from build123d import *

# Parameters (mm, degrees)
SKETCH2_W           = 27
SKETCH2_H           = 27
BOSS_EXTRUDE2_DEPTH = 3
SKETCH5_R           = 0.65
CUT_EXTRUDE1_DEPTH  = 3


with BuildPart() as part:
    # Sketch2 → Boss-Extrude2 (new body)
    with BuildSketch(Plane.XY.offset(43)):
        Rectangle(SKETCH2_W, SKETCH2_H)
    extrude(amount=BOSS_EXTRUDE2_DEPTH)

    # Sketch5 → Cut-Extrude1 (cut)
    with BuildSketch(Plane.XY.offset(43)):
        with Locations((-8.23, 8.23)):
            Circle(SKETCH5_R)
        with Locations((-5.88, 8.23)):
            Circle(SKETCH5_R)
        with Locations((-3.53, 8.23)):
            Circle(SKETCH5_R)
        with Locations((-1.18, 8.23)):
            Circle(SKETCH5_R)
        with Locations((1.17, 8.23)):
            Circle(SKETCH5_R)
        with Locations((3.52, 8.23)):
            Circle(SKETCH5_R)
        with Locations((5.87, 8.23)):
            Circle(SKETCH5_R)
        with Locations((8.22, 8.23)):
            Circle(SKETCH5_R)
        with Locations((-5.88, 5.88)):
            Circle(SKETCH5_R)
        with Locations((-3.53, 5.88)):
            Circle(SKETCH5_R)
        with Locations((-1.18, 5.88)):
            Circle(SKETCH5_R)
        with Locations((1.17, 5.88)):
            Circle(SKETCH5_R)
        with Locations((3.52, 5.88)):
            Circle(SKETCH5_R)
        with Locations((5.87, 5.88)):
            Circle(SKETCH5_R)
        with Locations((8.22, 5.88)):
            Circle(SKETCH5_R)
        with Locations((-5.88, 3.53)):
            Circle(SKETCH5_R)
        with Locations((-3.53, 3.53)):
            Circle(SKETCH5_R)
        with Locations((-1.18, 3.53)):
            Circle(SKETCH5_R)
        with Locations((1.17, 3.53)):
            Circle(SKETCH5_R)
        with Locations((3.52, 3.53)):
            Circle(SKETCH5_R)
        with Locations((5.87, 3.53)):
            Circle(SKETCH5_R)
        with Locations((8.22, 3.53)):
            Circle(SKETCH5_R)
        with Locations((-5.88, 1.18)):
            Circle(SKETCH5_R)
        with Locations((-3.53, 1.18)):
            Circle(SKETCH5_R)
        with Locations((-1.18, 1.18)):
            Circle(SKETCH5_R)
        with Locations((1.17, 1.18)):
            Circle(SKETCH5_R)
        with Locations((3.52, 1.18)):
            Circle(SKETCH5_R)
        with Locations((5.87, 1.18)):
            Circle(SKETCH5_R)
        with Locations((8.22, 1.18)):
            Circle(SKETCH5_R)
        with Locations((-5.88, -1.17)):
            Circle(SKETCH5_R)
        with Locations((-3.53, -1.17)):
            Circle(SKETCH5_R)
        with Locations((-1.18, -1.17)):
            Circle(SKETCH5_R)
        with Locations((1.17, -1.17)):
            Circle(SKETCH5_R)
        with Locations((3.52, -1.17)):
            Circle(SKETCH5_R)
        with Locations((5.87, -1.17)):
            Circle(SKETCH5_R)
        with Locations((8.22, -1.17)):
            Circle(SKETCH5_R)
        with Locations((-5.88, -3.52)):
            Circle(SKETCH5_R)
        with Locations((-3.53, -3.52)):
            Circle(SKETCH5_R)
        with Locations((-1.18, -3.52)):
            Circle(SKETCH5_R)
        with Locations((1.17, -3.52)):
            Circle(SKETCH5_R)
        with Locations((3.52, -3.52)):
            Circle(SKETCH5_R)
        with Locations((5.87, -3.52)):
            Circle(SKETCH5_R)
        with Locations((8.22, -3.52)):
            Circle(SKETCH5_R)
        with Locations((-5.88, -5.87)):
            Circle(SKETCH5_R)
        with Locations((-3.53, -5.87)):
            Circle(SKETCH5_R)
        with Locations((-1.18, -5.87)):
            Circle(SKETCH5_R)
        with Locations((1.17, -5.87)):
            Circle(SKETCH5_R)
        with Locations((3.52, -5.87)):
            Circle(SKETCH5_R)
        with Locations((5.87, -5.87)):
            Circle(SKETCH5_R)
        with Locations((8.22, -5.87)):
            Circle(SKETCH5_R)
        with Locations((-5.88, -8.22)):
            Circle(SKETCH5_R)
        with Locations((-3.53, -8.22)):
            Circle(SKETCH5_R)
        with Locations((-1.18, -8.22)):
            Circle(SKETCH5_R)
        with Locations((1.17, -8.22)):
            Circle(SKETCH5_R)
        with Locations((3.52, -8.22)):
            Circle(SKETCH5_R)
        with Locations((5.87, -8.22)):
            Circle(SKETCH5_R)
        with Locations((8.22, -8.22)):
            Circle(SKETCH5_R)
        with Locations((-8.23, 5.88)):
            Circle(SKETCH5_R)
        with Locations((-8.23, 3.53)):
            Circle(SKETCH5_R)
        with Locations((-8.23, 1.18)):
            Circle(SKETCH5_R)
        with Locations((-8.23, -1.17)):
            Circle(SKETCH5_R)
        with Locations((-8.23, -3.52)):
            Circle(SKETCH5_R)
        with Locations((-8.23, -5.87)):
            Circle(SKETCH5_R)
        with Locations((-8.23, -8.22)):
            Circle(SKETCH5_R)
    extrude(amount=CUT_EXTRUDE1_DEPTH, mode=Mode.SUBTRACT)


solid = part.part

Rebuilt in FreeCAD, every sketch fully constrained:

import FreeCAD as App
import Part
import Sketcher
from FreeCAD import Vector
Q = App.Units.Quantity

doc = App.newDocument("Part")
body = doc.addObject("PartDesign::Body", "Body")

# Sketch on XY plane
sketch1 = body.newObject("Sketcher::SketchObject", "Sketch")
sketch1.AttachmentSupport = (doc.getObject("XY_Plane"), [""])
sketch1.MapMode = "FlatFace"
sketch1.AttachmentOffset = App.Placement(Vector(0, 0, 43), App.Rotation())
sketch1.addGeometry(Part.LineSegment(Vector(-14, 14, 0), Vector(-14, -14, 0)), False)
sketch1.addGeometry(Part.LineSegment(Vector(-14, -14, 0), Vector(14, -14, 0)), False)
sketch1.addGeometry(Part.LineSegment(Vector(14, -14, 0), Vector(14, 14, 0)), False)
sketch1.addGeometry(Part.LineSegment(Vector(14, 14, 0), Vector(-14, 14, 0)), False)
sketch1.addConstraint(Sketcher.Constraint("Coincident", 0, 2, 1, 1))
sketch1.addConstraint(Sketcher.Constraint("Coincident", 1, 2, 2, 1))
sketch1.addConstraint(Sketcher.Constraint("Coincident", 2, 2, 3, 1))
sketch1.addConstraint(Sketcher.Constraint("Coincident", 3, 2, 0, 1))
sketch1.addConstraint(Sketcher.Constraint("Vertical", 0))
sketch1.addConstraint(Sketcher.Constraint("Horizontal", 1))
sketch1.addConstraint(Sketcher.Constraint("Vertical", 2))
sketch1.addConstraint(Sketcher.Constraint("Horizontal", 3))
sketch1.addConstraint(Sketcher.Constraint("Symmetric", 0, 2, 2, 2, -1, 1))
sketch1.addConstraint(Sketcher.Constraint("Equal", 3, 0))
sketch1.addConstraint(Sketcher.Constraint("DistanceX", 1, 1, 1, 2, Q("27 mm")))
pad1 = body.newObject("PartDesign::Pad", "Pad")
pad1.Profile = sketch1
pad1.Length = 3

# Sketch on XY plane
sketch2 = body.newObject("Sketcher::SketchObject", "Sketch001")
sketch2.AttachmentSupport = (doc.getObject("XY_Plane"), [""])
sketch2.MapMode = "FlatFace"
sketch2.AttachmentOffset = App.Placement(Vector(0, 0, 43), App.Rotation())
sketch2.addGeometry(Part.Circle(Vector(-8.2, 8.2, 0), Vector(0, 0, 1), 0.7), False)
sketch2.addGeometry(Part.Circle(Vector(-5.9, 8.2, 0), Vector(0, 0, 1), 0.7), False)
sketch2.addGeometry(Part.Circle(Vector(-3.5, 8.2, 0), Vector(0, 0, 1), 0.7), False)
sketch2.addGeometry(Part.Circle(Vector(-1.2, 8.2, 0), Vector(0, 0, 1), 0.7), False)
sketch2.addGeometry(Part.Circle(Vector(1.2, 8.2, 0), Vector(0, 0, 1), 0.7), False)
sketch2.addGeometry(Part.Circle(Vector(3.5, 8.2, 0), Vector(0, 0, 1), 0.7), False)
sketch2.addGeometry(Part.Circle(Vector(5.9, 8.2, 0), Vector(0, 0, 1), 0.7), False)
sketch2.addGeometry(Part.Circle(Vector(8.2, 8.2, 0), Vector(0, 0, 1), 0.7), False)
sketch2.addGeometry(Part.Circle(Vector(-5.9, 5.9, 0), Vector(0, 0, 1), 0.7), False)
sketch2.addGeometry(Part.Circle(Vector(-3.5, 5.9, 0), Vector(0, 0, 1), 0.7), False)
sketch2.addGeometry(Part.Circle(Vector(-1.2, 5.9, 0), Vector(0, 0, 1), 0.7), False)
sketch2.addGeometry(Part.Circle(Vector(1.2, 5.9, 0), Vector(0, 0, 1), 0.7), False)
sketch2.addGeometry(Part.Circle(Vector(3.5, 5.9, 0), Vector(0, 0, 1), 0.7), False)
sketch2.addGeometry(Part.Circle(Vector(5.9, 5.9, 0), Vector(0, 0, 1), 0.7), False)
sketch2.addGeometry(Part.Circle(Vector(8.2, 5.9, 0), Vector(0, 0, 1), 0.7), False)
sketch2.addGeometry(Part.Circle(Vector(-5.9, 3.5, 0), Vector(0, 0, 1), 0.7), False)
sketch2.addGeometry(Part.Circle(Vector(-3.5, 3.5, 0), Vector(0, 0, 1), 0.7), False)
sketch2.addGeometry(Part.Circle(Vector(-1.2, 3.5, 0), Vector(0, 0, 1), 0.7), False)
sketch2.addGeometry(Part.Circle(Vector(1.2, 3.5, 0), Vector(0, 0, 1), 0.7), False)
sketch2.addGeometry(Part.Circle(Vector(3.5, 3.5, 0), Vector(0, 0, 1), 0.7), False)
sketch2.addGeometry(Part.Circle(Vector(5.9, 3.5, 0), Vector(0, 0, 1), 0.7), False)
sketch2.addGeometry(Part.Circle(Vector(8.2, 3.5, 0), Vector(0, 0, 1), 0.7), False)
sketch2.addGeometry(Part.Circle(Vector(-5.9, 1.2, 0), Vector(0, 0, 1), 0.7), False)
sketch2.addGeometry(Part.Circle(Vector(-3.5, 1.2, 0), Vector(0, 0, 1), 0.7), False)
sketch2.addGeometry(Part.Circle(Vector(-1.2, 1.2, 0), Vector(0, 0, 1), 0.7), False)
sketch2.addGeometry(Part.Circle(Vector(1.2, 1.2, 0), Vector(0, 0, 1), 0.7), False)
sketch2.addGeometry(Part.Circle(Vector(3.5, 1.2, 0), Vector(0, 0, 1), 0.7), False)
sketch2.addGeometry(Part.Circle(Vector(5.9, 1.2, 0), Vector(0, 0, 1), 0.7), False)
sketch2.addGeometry(Part.Circle(Vector(8.2, 1.2, 0), Vector(0, 0, 1), 0.7), False)
sketch2.addGeometry(Part.Circle(Vector(-5.9, -1.2, 0), Vector(0, 0, 1), 0.7), False)
sketch2.addGeometry(Part.Circle(Vector(-3.5, -1.2, 0), Vector(0, 0, 1), 0.7), False)
sketch2.addGeometry(Part.Circle(Vector(-1.2, -1.2, 0), Vector(0, 0, 1), 0.7), False)
sketch2.addGeometry(Part.Circle(Vector(1.2, -1.2, 0), Vector(0, 0, 1), 0.7), False)
sketch2.addGeometry(Part.Circle(Vector(3.5, -1.2, 0), Vector(0, 0, 1), 0.7), False)
sketch2.addGeometry(Part.Circle(Vector(5.9, -1.2, 0), Vector(0, 0, 1), 0.7), False)
sketch2.addGeometry(Part.Circle(Vector(8.2, -1.2, 0), Vector(0, 0, 1), 0.7), False)
sketch2.addGeometry(Part.Circle(Vector(-5.9, -3.5, 0), Vector(0, 0, 1), 0.7), False)
sketch2.addGeometry(Part.Circle(Vector(-3.5, -3.5, 0), Vector(0, 0, 1), 0.7), False)
sketch2.addGeometry(Part.Circle(Vector(-1.2, -3.5, 0), Vector(0, 0, 1), 0.7), False)
sketch2.addGeometry(Part.Circle(Vector(1.2, -3.5, 0), Vector(0, 0, 1), 0.7), False)
sketch2.addGeometry(Part.Circle(Vector(3.5, -3.5, 0), Vector(0, 0, 1), 0.7), False)
sketch2.addGeometry(Part.Circle(Vector(5.9, -3.5, 0), Vector(0, 0, 1), 0.7), False)
sketch2.addGeometry(Part.Circle(Vector(8.2, -3.5, 0), Vector(0, 0, 1), 0.7), False)
sketch2.addGeometry(Part.Circle(Vector(-5.9, -5.9, 0), Vector(0, 0, 1), 0.7), False)
sketch2.addGeometry(Part.Circle(Vector(-3.5, -5.9, 0), Vector(0, 0, 1), 0.7), False)
sketch2.addGeometry(Part.Circle(Vector(-1.2, -5.9, 0), Vector(0, 0, 1), 0.7), False)
sketch2.addGeometry(Part.Circle(Vector(1.2, -5.9, 0), Vector(0, 0, 1), 0.7), False)
sketch2.addGeometry(Part.Circle(Vector(3.5, -5.9, 0), Vector(0, 0, 1), 0.7), False)
sketch2.addGeometry(Part.Circle(Vector(5.9, -5.9, 0), Vector(0, 0, 1), 0.7), False)
sketch2.addGeometry(Part.Circle(Vector(8.2, -5.9, 0), Vector(0, 0, 1), 0.7), False)
sketch2.addGeometry(Part.Circle(Vector(-5.9, -8.2, 0), Vector(0, 0, 1), 0.7), False)
sketch2.addGeometry(Part.Circle(Vector(-3.5, -8.2, 0), Vector(0, 0, 1), 0.7), False)
sketch2.addGeometry(Part.Circle(Vector(-1.2, -8.2, 0), Vector(0, 0, 1), 0.7), False)
sketch2.addGeometry(Part.Circle(Vector(1.2, -8.2, 0), Vector(0, 0, 1), 0.7), False)
sketch2.addGeometry(Part.Circle(Vector(3.5, -8.2, 0), Vector(0, 0, 1), 0.7), False)
sketch2.addGeometry(Part.Circle(Vector(5.9, -8.2, 0), Vector(0, 0, 1), 0.7), False)
sketch2.addGeometry(Part.Circle(Vector(8.2, -8.2, 0), Vector(0, 0, 1), 0.7), False)
sketch2.addGeometry(Part.Circle(Vector(-8.2, 5.9, 0), Vector(0, 0, 1), 0.7), False)
sketch2.addGeometry(Part.Circle(Vector(-8.2, 3.5, 0), Vector(0, 0, 1), 0.7), False)
sketch2.addGeometry(Part.Circle(Vector(-8.2, 1.2, 0), Vector(0, 0, 1), 0.7), False)
sketch2.addGeometry(Part.Circle(Vector(-8.2, -1.2, 0), Vector(0, 0, 1), 0.7), False)
sketch2.addGeometry(Part.Circle(Vector(-8.2, -3.5, 0), Vector(0, 0, 1), 0.7), False)
sketch2.addGeometry(Part.Circle(Vector(-8.2, -5.9, 0), Vector(0, 0, 1), 0.7), False)
sketch2.addGeometry(Part.Circle(Vector(-8.2, -8.2, 0), Vector(0, 0, 1), 0.7), False)
sketch2.addConstraint(Sketcher.Constraint("Equal", 0, 1))
sketch2.addConstraint(Sketcher.Constraint("Equal", 1, 2))
sketch2.addConstraint(Sketcher.Constraint("Equal", 2, 3))
sketch2.addConstraint(Sketcher.Constraint("Equal", 3, 4))
sketch2.addConstraint(Sketcher.Constraint("Equal", 4, 5))
sketch2.addConstraint(Sketcher.Constraint("Equal", 5, 6))
sketch2.addConstraint(Sketcher.Constraint("Equal", 6, 7))
sketch2.addConstraint(Sketcher.Constraint("Equal", 7, 8))
sketch2.addConstraint(Sketcher.Constraint("Equal", 8, 9))
sketch2.addConstraint(Sketcher.Constraint("Equal", 9, 10))
sketch2.addConstraint(Sketcher.Constraint("Equal", 10, 11))
sketch2.addConstraint(Sketcher.Constraint("Equal", 11, 12))
sketch2.addConstraint(Sketcher.Constraint("Equal", 12, 13))
sketch2.addConstraint(Sketcher.Constraint("Equal", 13, 14))
sketch2.addConstraint(Sketcher.Constraint("Equal", 14, 15))
sketch2.addConstraint(Sketcher.Constraint("Equal", 15, 16))
sketch2.addConstraint(Sketcher.Constraint("Equal", 16, 17))
sketch2.addConstraint(Sketcher.Constraint("Equal", 17, 18))
sketch2.addConstraint(Sketcher.Constraint("Equal", 18, 19))
sketch2.addConstraint(Sketcher.Constraint("Equal", 19, 20))
sketch2.addConstraint(Sketcher.Constraint("Equal", 20, 21))
sketch2.addConstraint(Sketcher.Constraint("Equal", 21, 22))
sketch2.addConstraint(Sketcher.Constraint("Equal", 22, 23))
sketch2.addConstraint(Sketcher.Constraint("Equal", 23, 24))
sketch2.addConstraint(Sketcher.Constraint("Equal", 24, 25))
sketch2.addConstraint(Sketcher.Constraint("Equal", 25, 26))
sketch2.addConstraint(Sketcher.Constraint("Equal", 26, 27))
sketch2.addConstraint(Sketcher.Constraint("Equal", 27, 28))
sketch2.addConstraint(Sketcher.Constraint("Equal", 28, 29))
sketch2.addConstraint(Sketcher.Constraint("Equal", 29, 30))
sketch2.addConstraint(Sketcher.Constraint("Equal", 30, 31))
sketch2.addConstraint(Sketcher.Constraint("Equal", 31, 32))
sketch2.addConstraint(Sketcher.Constraint("Equal", 32, 33))
sketch2.addConstraint(Sketcher.Constraint("Equal", 33, 34))
sketch2.addConstraint(Sketcher.Constraint("Equal", 34, 35))
sketch2.addConstraint(Sketcher.Constraint("Equal", 35, 36))
sketch2.addConstraint(Sketcher.Constraint("Equal", 36, 37))
sketch2.addConstraint(Sketcher.Constraint("Equal", 37, 38))
sketch2.addConstraint(Sketcher.Constraint("Equal", 38, 39))
sketch2.addConstraint(Sketcher.Constraint("Equal", 39, 40))
sketch2.addConstraint(Sketcher.Constraint("Equal", 40, 41))
sketch2.addConstraint(Sketcher.Constraint("Equal", 41, 42))
sketch2.addConstraint(Sketcher.Constraint("Equal", 42, 43))
sketch2.addConstraint(Sketcher.Constraint("Equal", 43, 44))
sketch2.addConstraint(Sketcher.Constraint("Equal", 44, 45))
sketch2.addConstraint(Sketcher.Constraint("Equal", 45, 46))
sketch2.addConstraint(Sketcher.Constraint("Equal", 46, 47))
sketch2.addConstraint(Sketcher.Constraint("Equal", 47, 48))
sketch2.addConstraint(Sketcher.Constraint("Equal", 48, 49))
sketch2.addConstraint(Sketcher.Constraint("Equal", 49, 50))
sketch2.addConstraint(Sketcher.Constraint("Equal", 50, 51))
sketch2.addConstraint(Sketcher.Constraint("Equal", 51, 52))
sketch2.addConstraint(Sketcher.Constraint("Equal", 52, 53))
sketch2.addConstraint(Sketcher.Constraint("Equal", 53, 54))
sketch2.addConstraint(Sketcher.Constraint("Equal", 54, 55))
sketch2.addConstraint(Sketcher.Constraint("Equal", 55, 56))
sketch2.addConstraint(Sketcher.Constraint("Equal", 56, 57))
sketch2.addConstraint(Sketcher.Constraint("Equal", 57, 58))
sketch2.addConstraint(Sketcher.Constraint("Equal", 58, 59))
sketch2.addConstraint(Sketcher.Constraint("Equal", 59, 60))
sketch2.addConstraint(Sketcher.Constraint("Equal", 60, 61))
sketch2.addConstraint(Sketcher.Constraint("Equal", 61, 62))
sketch2.addConstraint(Sketcher.Constraint("Equal", 62, 63))
sketch2.addConstraint(Sketcher.Constraint("Horizontal", 0, 3, 1, 3))
sketch2.addConstraint(Sketcher.Constraint("Horizontal", 1, 3, 2, 3))
sketch2.addConstraint(Sketcher.Constraint("Horizontal", 2, 3, 3, 3))
sketch2.addConstraint(Sketcher.Constraint("Horizontal", 3, 3, 4, 3))
sketch2.addConstraint(Sketcher.Constraint("Horizontal", 4, 3, 5, 3))
sketch2.addConstraint(Sketcher.Constraint("Horizontal", 5, 3, 6, 3))
sketch2.addConstraint(Sketcher.Constraint("Horizontal", 6, 3, 7, 3))
sketch2.addConstraint(Sketcher.Constraint("Horizontal", 8, 3, 9, 3))
sketch2.addConstraint(Sketcher.Constraint("Horizontal", 9, 3, 10, 3))
sketch2.addConstraint(Sketcher.Constraint("Horizontal", 10, 3, 11, 3))
sketch2.addConstraint(Sketcher.Constraint("Horizontal", 11, 3, 12, 3))
sketch2.addConstraint(Sketcher.Constraint("Horizontal", 12, 3, 13, 3))
sketch2.addConstraint(Sketcher.Constraint("Horizontal", 13, 3, 14, 3))
sketch2.addConstraint(Sketcher.Constraint("Horizontal", 15, 3, 16, 3))
sketch2.addConstraint(Sketcher.Constraint("Horizontal", 16, 3, 17, 3))
sketch2.addConstraint(Sketcher.Constraint("Horizontal", 17, 3, 18, 3))
sketch2.addConstraint(Sketcher.Constraint("Horizontal", 18, 3, 19, 3))
sketch2.addConstraint(Sketcher.Constraint("Horizontal", 19, 3, 20, 3))
sketch2.addConstraint(Sketcher.Constraint("Horizontal", 20, 3, 21, 3))
sketch2.addConstraint(Sketcher.Constraint("Horizontal", 22, 3, 23, 3))
sketch2.addConstraint(Sketcher.Constraint("Horizontal", 23, 3, 24, 3))
sketch2.addConstraint(Sketcher.Constraint("Horizontal", 24, 3, 25, 3))
sketch2.addConstraint(Sketcher.Constraint("Horizontal", 25, 3, 26, 3))
sketch2.addConstraint(Sketcher.Constraint("Horizontal", 26, 3, 27, 3))
sketch2.addConstraint(Sketcher.Constraint("Horizontal", 27, 3, 28, 3))
sketch2.addConstraint(Sketcher.Constraint("Horizontal", 29, 3, 30, 3))
sketch2.addConstraint(Sketcher.Constraint("Horizontal", 30, 3, 31, 3))
sketch2.addConstraint(Sketcher.Constraint("Horizontal", 31, 3, 32, 3))
sketch2.addConstraint(Sketcher.Constraint("Horizontal", 32, 3, 33, 3))
sketch2.addConstraint(Sketcher.Constraint("Horizontal", 33, 3, 34, 3))
sketch2.addConstraint(Sketcher.Constraint("Horizontal", 34, 3, 35, 3))
sketch2.addConstraint(Sketcher.Constraint("Horizontal", 36, 3, 37, 3))
sketch2.addConstraint(Sketcher.Constraint("Horizontal", 37, 3, 38, 3))
sketch2.addConstraint(Sketcher.Constraint("Horizontal", 38, 3, 39, 3))
sketch2.addConstraint(Sketcher.Constraint("Horizontal", 39, 3, 40, 3))
sketch2.addConstraint(Sketcher.Constraint("Horizontal", 40, 3, 41, 3))
sketch2.addConstraint(Sketcher.Constraint("Horizontal", 41, 3, 42, 3))
sketch2.addConstraint(Sketcher.Constraint("Horizontal", 43, 3, 44, 3))
sketch2.addConstraint(Sketcher.Constraint("Horizontal", 44, 3, 45, 3))
sketch2.addConstraint(Sketcher.Constraint("Horizontal", 45, 3, 46, 3))
sketch2.addConstraint(Sketcher.Constraint("Horizontal", 46, 3, 47, 3))
sketch2.addConstraint(Sketcher.Constraint("Horizontal", 47, 3, 48, 3))
sketch2.addConstraint(Sketcher.Constraint("Horizontal", 48, 3, 49, 3))
sketch2.addConstraint(Sketcher.Constraint("Horizontal", 50, 3, 51, 3))
sketch2.addConstraint(Sketcher.Constraint("Horizontal", 51, 3, 52, 3))
sketch2.addConstraint(Sketcher.Constraint("Horizontal", 52, 3, 53, 3))
sketch2.addConstraint(Sketcher.Constraint("Horizontal", 53, 3, 54, 3))
sketch2.addConstraint(Sketcher.Constraint("Horizontal", 54, 3, 55, 3))
sketch2.addConstraint(Sketcher.Constraint("Horizontal", 55, 3, 56, 3))
sketch2.addConstraint(Sketcher.Constraint("Horizontal", 14, 3, 57, 3))
sketch2.addConstraint(Sketcher.Constraint("Horizontal", 21, 3, 58, 3))
sketch2.addConstraint(Sketcher.Constraint("Horizontal", 28, 3, 59, 3))
sketch2.addConstraint(Sketcher.Constraint("Horizontal", 35, 3, 60, 3))
sketch2.addConstraint(Sketcher.Constraint("Horizontal", 42, 3, 61, 3))
sketch2.addConstraint(Sketcher.Constraint("Horizontal", 49, 3, 62, 3))
sketch2.addConstraint(Sketcher.Constraint("Horizontal", 56, 3, 63, 3))
sketch2.addConstraint(Sketcher.Constraint("Vertical", 1, 3, 8, 3))
sketch2.addConstraint(Sketcher.Constraint("Vertical", 2, 3, 9, 3))
sketch2.addConstraint(Sketcher.Constraint("Vertical", 3, 3, 10, 3))
sketch2.addConstraint(Sketcher.Constraint("Vertical", 4, 3, 11, 3))
sketch2.addConstraint(Sketcher.Constraint("Vertical", 5, 3, 12, 3))
sketch2.addConstraint(Sketcher.Constraint("Vertical", 6, 3, 13, 3))
sketch2.addConstraint(Sketcher.Constraint("Vertical", 7, 3, 14, 3))
sketch2.addConstraint(Sketcher.Constraint("Vertical", 8, 3, 15, 3))
sketch2.addConstraint(Sketcher.Constraint("Vertical", 9, 3, 16, 3))
sketch2.addConstraint(Sketcher.Constraint("Vertical", 10, 3, 17, 3))
sketch2.addConstraint(Sketcher.Constraint("Vertical", 11, 3, 18, 3))
sketch2.addConstraint(Sketcher.Constraint("Vertical", 12, 3, 19, 3))
sketch2.addConstraint(Sketcher.Constraint("Vertical", 13, 3, 20, 3))
sketch2.addConstraint(Sketcher.Constraint("Vertical", 14, 3, 21, 3))
sketch2.addConstraint(Sketcher.Constraint("Vertical", 15, 3, 22, 3))
sketch2.addConstraint(Sketcher.Constraint("Vertical", 16, 3, 23, 3))
sketch2.addConstraint(Sketcher.Constraint("Vertical", 17, 3, 24, 3))
sketch2.addConstraint(Sketcher.Constraint("Vertical", 18, 3, 25, 3))
sketch2.addConstraint(Sketcher.Constraint("Vertical", 19, 3, 26, 3))
sketch2.addConstraint(Sketcher.Constraint("Vertical", 20, 3, 27, 3))
sketch2.addConstraint(Sketcher.Constraint("Vertical", 21, 3, 28, 3))
sketch2.addConstraint(Sketcher.Constraint("Vertical", 22, 3, 29, 3))
sketch2.addConstraint(Sketcher.Constraint("Vertical", 23, 3, 30, 3))
sketch2.addConstraint(Sketcher.Constraint("Vertical", 24, 3, 31, 3))
sketch2.addConstraint(Sketcher.Constraint("Vertical", 25, 3, 32, 3))
sketch2.addConstraint(Sketcher.Constraint("Vertical", 26, 3, 33, 3))
sketch2.addConstraint(Sketcher.Constraint("Vertical", 27, 3, 34, 3))
sketch2.addConstraint(Sketcher.Constraint("Vertical", 28, 3, 35, 3))
sketch2.addConstraint(Sketcher.Constraint("Vertical", 29, 3, 36, 3))
sketch2.addConstraint(Sketcher.Constraint("Vertical", 30, 3, 37, 3))
sketch2.addConstraint(Sketcher.Constraint("Vertical", 31, 3, 38, 3))
sketch2.addConstraint(Sketcher.Constraint("Vertical", 32, 3, 39, 3))
sketch2.addConstraint(Sketcher.Constraint("Vertical", 33, 3, 40, 3))
sketch2.addConstraint(Sketcher.Constraint("Vertical", 34, 3, 41, 3))
sketch2.addConstraint(Sketcher.Constraint("Vertical", 35, 3, 42, 3))
sketch2.addConstraint(Sketcher.Constraint("Vertical", 36, 3, 43, 3))
sketch2.addConstraint(Sketcher.Constraint("Vertical", 37, 3, 44, 3))
sketch2.addConstraint(Sketcher.Constraint("Vertical", 38, 3, 45, 3))
sketch2.addConstraint(Sketcher.Constraint("Vertical", 39, 3, 46, 3))
sketch2.addConstraint(Sketcher.Constraint("Vertical", 40, 3, 47, 3))
sketch2.addConstraint(Sketcher.Constraint("Vertical", 41, 3, 48, 3))
sketch2.addConstraint(Sketcher.Constraint("Vertical", 42, 3, 49, 3))
sketch2.addConstraint(Sketcher.Constraint("Vertical", 43, 3, 50, 3))
sketch2.addConstraint(Sketcher.Constraint("Vertical", 44, 3, 51, 3))
sketch2.addConstraint(Sketcher.Constraint("Vertical", 45, 3, 52, 3))
sketch2.addConstraint(Sketcher.Constraint("Vertical", 46, 3, 53, 3))
sketch2.addConstraint(Sketcher.Constraint("Vertical", 47, 3, 54, 3))
sketch2.addConstraint(Sketcher.Constraint("Vertical", 48, 3, 55, 3))
sketch2.addConstraint(Sketcher.Constraint("Vertical", 49, 3, 56, 3))
sketch2.addConstraint(Sketcher.Constraint("Vertical", 0, 3, 57, 3))
sketch2.addConstraint(Sketcher.Constraint("Vertical", 57, 3, 58, 3))
sketch2.addConstraint(Sketcher.Constraint("Vertical", 58, 3, 59, 3))
sketch2.addConstraint(Sketcher.Constraint("Vertical", 59, 3, 60, 3))
sketch2.addConstraint(Sketcher.Constraint("Vertical", 60, 3, 61, 3))
sketch2.addConstraint(Sketcher.Constraint("Vertical", 61, 3, 62, 3))
sketch2.addConstraint(Sketcher.Constraint("Vertical", 62, 3, 63, 3))
sketch2.addConstraint(Sketcher.Constraint("Diameter", 0, Q("1.3 mm")))
sketch2.addConstraint(Sketcher.Constraint("DistanceX", 0, 3, -1, 1, Q("8.23 mm")))
sketch2.addConstraint(Sketcher.Constraint("DistanceY", -1, 1, 0, 3, Q("8.23 mm")))
sketch2.addConstraint(Sketcher.Constraint("DistanceX", 1, 3, -1, 1, Q("5.88 mm")))
sketch2.addConstraint(Sketcher.Constraint("DistanceX", 2, 3, -1, 1, Q("3.53 mm")))
sketch2.addConstraint(Sketcher.Constraint("DistanceX", 3, 3, -1, 1, Q("1.18 mm")))
sketch2.addConstraint(Sketcher.Constraint("DistanceX", -1, 1, 4, 3, Q("1.17 mm")))
sketch2.addConstraint(Sketcher.Constraint("DistanceX", -1, 1, 5, 3, Q("3.52 mm")))
sketch2.addConstraint(Sketcher.Constraint("DistanceX", -1, 1, 6, 3, Q("5.87 mm")))
sketch2.addConstraint(Sketcher.Constraint("DistanceX", -1, 1, 7, 3, Q("8.22 mm")))
sketch2.addConstraint(Sketcher.Constraint("DistanceY", -1, 1, 8, 3, Q("5.88 mm")))
sketch2.addConstraint(Sketcher.Constraint("DistanceY", -1, 1, 15, 3, Q("3.53 mm")))
sketch2.addConstraint(Sketcher.Constraint("DistanceY", -1, 1, 22, 3, Q("1.18 mm")))
sketch2.addConstraint(Sketcher.Constraint("DistanceY", 29, 3, -1, 1, Q("1.17 mm")))
sketch2.addConstraint(Sketcher.Constraint("DistanceY", 36, 3, -1, 1, Q("3.52 mm")))
sketch2.addConstraint(Sketcher.Constraint("DistanceY", 43, 3, -1, 1, Q("5.87 mm")))
sketch2.addConstraint(Sketcher.Constraint("DistanceY", 50, 3, -1, 1, Q("8.22 mm")))
pocket1 = body.newObject("PartDesign::Pocket", "Pocket")
pocket1.Profile = sketch2
pocket1.Length = 3
pocket1.Reversed = True

doc.recompute()
